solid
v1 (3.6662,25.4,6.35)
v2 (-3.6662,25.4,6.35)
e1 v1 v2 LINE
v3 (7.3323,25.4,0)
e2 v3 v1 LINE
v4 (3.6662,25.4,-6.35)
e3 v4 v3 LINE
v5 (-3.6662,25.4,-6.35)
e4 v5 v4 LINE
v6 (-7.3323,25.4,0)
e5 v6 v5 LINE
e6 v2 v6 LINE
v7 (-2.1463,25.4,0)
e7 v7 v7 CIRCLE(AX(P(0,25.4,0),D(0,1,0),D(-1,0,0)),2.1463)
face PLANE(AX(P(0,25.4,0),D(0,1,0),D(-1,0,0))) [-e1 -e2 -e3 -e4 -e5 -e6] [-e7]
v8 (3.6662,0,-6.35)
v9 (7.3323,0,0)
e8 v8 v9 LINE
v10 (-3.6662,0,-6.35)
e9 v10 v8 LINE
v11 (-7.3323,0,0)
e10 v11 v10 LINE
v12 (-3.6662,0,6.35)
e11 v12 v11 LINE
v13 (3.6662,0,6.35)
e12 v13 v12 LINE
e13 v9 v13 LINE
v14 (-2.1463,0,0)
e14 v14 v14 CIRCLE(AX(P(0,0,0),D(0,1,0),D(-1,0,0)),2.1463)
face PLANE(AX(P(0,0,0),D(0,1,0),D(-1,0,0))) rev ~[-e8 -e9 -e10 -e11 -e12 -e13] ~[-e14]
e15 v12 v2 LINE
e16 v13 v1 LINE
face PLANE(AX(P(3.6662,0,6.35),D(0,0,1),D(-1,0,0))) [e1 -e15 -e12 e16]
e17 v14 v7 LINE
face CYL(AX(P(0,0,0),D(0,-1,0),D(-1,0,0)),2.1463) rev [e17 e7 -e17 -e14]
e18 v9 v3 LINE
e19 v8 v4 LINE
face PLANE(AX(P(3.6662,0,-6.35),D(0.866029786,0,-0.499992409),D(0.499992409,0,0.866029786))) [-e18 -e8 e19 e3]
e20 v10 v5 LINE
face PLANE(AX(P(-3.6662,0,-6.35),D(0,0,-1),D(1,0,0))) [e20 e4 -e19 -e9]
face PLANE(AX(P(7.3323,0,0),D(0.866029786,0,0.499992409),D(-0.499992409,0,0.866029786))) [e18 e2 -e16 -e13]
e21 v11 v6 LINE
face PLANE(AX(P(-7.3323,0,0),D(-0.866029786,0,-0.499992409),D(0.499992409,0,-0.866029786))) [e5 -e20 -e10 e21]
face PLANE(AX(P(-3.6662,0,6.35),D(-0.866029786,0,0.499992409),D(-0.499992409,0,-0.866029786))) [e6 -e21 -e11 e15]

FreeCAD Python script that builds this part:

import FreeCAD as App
import Part
import Sketcher
Q = App.Units.Quantity


def add_polygon(sketch, points):
    """Adds a closed chain of lines whose ends are joined by coincident constraints."""
    first, n = sketch.GeometryCount, len(points)
    for a, b in zip(points, points[1:] + points[:1]):
        sketch.addGeometry(Part.LineSegment(App.Vector(*a, 0), App.Vector(*b, 0)), False)
    for i in range(n):
        sketch.addConstraint(Sketcher.Constraint("Coincident", first + i, 2, first + (i + 1) % n, 1))

doc = App.newDocument("Part")
body = doc.addObject("PartDesign::Body", "Body")

# Sketch on XZ plane
sketch1 = body.newObject("Sketcher::SketchObject", "Sketch")
sketch1.AttachmentSupport = (doc.getObject("XZ_Plane"), [""])
sketch1.MapMode = "FlatFace"
add_polygon(sketch1, [(-3.7, 6.3), (3.7, 6.3), (7.3, 0), (3.7, -6.3), (-3.7, -6.3), (-7.3, 0)])  # lines 0-5
sketch1.addGeometry(Part.Circle(App.Vector(0, 0, 0), App.Vector(0, 0, 1), 2.1), False)  # 6
sketch1.addConstraint(Sketcher.Constraint("Horizontal", 0))
sketch1.addConstraint(Sketcher.Constraint("Horizontal", 3))
sketch1.addConstraint(Sketcher.Constraint("Coincident", 6, 3, -1, 1))
sketch1.addConstraint(Sketcher.Constraint("Symmetric", 0, 2, 3, 2, -1, 1))
sketch1.addConstraint(Sketcher.Constraint("Symmetric", 1, 2, 4, 2, -1, 1))
sketch1.addConstraint(Sketcher.Constraint("PointOnObject", 1, 2, -1))
sketch1.addConstraint(Sketcher.Constraint("Parallel", 2, 5))
sketch1.addConstraint(Sketcher.Constraint("Vertical", 0, 2, 2, 2))
sketch1.addConstraint(Sketcher.Constraint("Diameter", 6, Q("0.169 in")))
sketch1.addConstraint(Sketcher.Constraint("DistanceY", 2, 2, 0, 2, Q("0.5 in")))
sketch1.addConstraint(Sketcher.Constraint("Angle", 1, Q("-60.0005 deg")))
sketch1.addConstraint(Sketcher.Constraint("DistanceX", 3, 2, 1, 2, Q("0.433 in")))
pad1 = body.newObject("PartDesign::Pad", "Pad")
pad1.Profile = sketch1
pad1.Length = Q("1 in")
pad1.Reversed = True

doc.recompute()
